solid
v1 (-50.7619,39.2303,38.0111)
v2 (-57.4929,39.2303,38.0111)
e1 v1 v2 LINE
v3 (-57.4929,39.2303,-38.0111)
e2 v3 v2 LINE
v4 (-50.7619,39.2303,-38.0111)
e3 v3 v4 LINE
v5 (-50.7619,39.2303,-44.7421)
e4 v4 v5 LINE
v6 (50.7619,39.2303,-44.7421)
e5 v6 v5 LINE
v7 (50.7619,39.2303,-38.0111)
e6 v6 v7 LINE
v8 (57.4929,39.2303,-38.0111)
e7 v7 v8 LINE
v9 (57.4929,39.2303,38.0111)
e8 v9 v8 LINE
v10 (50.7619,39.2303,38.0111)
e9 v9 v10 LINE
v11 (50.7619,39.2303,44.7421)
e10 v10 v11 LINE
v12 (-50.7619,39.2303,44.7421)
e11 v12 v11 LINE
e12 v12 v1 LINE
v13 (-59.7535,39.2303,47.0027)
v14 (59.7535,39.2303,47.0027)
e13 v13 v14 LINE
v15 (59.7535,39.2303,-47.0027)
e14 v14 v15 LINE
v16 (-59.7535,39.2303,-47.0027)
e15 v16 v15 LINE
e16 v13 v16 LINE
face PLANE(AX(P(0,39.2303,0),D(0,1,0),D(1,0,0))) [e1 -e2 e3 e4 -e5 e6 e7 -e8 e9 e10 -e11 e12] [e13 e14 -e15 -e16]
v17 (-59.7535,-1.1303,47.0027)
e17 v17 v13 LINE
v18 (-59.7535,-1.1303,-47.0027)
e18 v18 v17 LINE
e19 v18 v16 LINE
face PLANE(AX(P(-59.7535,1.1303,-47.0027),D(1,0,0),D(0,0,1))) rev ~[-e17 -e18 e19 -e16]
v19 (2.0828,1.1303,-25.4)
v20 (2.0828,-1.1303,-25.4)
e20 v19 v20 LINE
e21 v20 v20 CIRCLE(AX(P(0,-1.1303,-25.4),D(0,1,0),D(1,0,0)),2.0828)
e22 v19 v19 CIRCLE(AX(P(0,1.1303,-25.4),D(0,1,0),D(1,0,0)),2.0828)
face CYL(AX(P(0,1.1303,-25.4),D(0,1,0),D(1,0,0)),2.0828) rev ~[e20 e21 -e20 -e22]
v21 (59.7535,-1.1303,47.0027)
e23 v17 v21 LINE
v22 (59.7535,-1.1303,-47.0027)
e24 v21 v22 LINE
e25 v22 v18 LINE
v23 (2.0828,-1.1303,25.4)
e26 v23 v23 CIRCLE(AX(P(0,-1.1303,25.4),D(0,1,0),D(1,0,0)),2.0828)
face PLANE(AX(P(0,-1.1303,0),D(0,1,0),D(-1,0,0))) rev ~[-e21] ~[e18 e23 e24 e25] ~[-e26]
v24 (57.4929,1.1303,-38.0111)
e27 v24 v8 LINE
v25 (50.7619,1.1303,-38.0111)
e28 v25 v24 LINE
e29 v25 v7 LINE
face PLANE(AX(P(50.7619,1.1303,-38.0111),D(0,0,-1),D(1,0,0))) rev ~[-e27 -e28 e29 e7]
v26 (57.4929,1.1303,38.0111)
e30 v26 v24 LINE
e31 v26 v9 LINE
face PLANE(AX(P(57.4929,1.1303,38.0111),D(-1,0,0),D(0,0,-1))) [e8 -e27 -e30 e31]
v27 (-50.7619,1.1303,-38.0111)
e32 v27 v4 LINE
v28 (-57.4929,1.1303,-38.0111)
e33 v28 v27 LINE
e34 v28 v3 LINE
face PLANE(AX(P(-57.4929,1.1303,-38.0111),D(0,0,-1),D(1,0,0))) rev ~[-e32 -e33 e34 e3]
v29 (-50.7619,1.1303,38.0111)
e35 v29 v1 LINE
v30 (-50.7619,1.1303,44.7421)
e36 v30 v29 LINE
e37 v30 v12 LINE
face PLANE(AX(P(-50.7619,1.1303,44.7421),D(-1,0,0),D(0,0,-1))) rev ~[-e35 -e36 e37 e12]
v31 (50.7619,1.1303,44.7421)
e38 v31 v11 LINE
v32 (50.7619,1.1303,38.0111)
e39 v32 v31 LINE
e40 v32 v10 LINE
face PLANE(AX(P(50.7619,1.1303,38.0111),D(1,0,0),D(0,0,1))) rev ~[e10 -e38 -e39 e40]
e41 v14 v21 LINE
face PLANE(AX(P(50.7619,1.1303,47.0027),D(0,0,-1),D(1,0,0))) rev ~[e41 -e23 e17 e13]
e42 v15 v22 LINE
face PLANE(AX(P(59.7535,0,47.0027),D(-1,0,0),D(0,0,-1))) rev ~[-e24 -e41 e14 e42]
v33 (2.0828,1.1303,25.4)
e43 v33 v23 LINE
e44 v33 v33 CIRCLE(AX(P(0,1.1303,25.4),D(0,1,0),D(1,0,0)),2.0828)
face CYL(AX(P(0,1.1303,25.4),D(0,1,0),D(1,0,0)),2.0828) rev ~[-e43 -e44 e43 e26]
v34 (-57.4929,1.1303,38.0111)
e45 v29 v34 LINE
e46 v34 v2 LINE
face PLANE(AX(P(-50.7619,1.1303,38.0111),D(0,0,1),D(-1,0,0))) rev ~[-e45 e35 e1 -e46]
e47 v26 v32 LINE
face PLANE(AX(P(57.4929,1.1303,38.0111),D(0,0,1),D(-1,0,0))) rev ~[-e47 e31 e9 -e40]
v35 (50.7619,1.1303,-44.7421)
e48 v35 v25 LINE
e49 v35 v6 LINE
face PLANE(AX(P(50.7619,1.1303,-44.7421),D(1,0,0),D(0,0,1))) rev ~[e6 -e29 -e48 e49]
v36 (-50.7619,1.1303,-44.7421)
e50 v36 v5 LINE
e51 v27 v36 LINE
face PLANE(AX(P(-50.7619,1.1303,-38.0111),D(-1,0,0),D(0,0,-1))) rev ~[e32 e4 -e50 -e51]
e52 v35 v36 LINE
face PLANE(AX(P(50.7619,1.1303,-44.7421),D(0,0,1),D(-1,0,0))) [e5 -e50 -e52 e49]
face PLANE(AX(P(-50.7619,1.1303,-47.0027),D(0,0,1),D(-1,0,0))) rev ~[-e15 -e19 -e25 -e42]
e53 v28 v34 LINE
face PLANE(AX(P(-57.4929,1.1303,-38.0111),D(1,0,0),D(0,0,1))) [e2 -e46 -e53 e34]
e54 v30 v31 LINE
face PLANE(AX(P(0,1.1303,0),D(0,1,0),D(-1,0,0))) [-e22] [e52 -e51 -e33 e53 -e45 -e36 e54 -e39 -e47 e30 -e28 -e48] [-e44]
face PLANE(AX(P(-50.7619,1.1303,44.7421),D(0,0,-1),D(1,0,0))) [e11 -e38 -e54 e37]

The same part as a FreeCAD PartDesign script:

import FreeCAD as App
import Part
import Sketcher

V = App.Vector
Q = App.Units.Quantity


def add_polygon(sketch, points):
    """Adds a closed chain of lines whose ends are joined by coincident constraints."""
    first, n = sketch.GeometryCount, len(points)
    for a, b in zip(points, points[1:] + points[:1]):
        sketch.addGeometry(Part.LineSegment(App.Vector(*a, 0), App.Vector(*b, 0)), False)
    for i in range(n):
        sketch.addConstraint(Sketcher.Constraint("Coincident", first + i, 2, first + (i + 1) % n, 1))

doc = App.newDocument("Part")
body = doc.addObject("PartDesign::Body", "Body")

sketch1 = body.newObject("Sketcher::SketchObject", "Sketch")
sketch1.AttachmentSupport = (doc.getObject("XZ_Plane"), [""])
sketch1.MapMode = "FlatFace"
add_polygon(sketch1, [(59.7535, 47.0027), (59.7535, -47.0027), (-59.7535, -47.0027), (-59.7535, 47.0027)])
sketch1.addConstraint(Sketcher.Constraint("Vertical", 0))
sketch1.addConstraint(Sketcher.Constraint("Horizontal", 1))
sketch1.addConstraint(Sketcher.Constraint("Vertical", 2))
sketch1.addConstraint(Sketcher.Constraint("Horizontal", 3))
sketch1.addConstraint(Sketcher.Constraint("Symmetric", 0, 2, 2, 2, -1, 1))
sketch1.addConstraint(Sketcher.Constraint("DistanceX", 1, 2, 1, 1, Q("4.705 in")))
sketch1.addConstraint(Sketcher.Constraint("DistanceY", 0, 2, 0, 1, Q("3.701 in")))
pad1 = body.newObject("PartDesign::Pad", "Pad")
pad1.Profile = sketch1
pad1.Length = Q("0.089 in")
pad1.Midplane = True

sketch2 = body.newObject("Sketcher::SketchObject", "Sketch001")
sketch2.AttachmentSupport = (doc.getObject("XZ_Plane"), [""])
sketch2.MapMode = "FlatFace"
sketch2.AttachmentOffset = App.Placement(V(0, 0, -0.0445 * 25.4), App.Rotation())
add_polygon(sketch2, [(59.7535, -47.0027), (-59.7535, -47.0027), (-59.7535, 47.0027), (59.7535, 47.0027)])
add_polygon(sketch2, [(50.7619, 44.7421), (-50.7619, 44.7421), (-50.7619, 38.0111), (-57.4929, 38.0111), (-57.4929, -38.0111), (-50.7619, -38.0111), (-50.7619, -44.7421), (50.7619, -44.7421), (50.7619, -38.0111), (57.4929, -38.0111), (57.4929, 38.0111), (50.7619, 38.0111)])
sketch2.addConstraint(Sketcher.Constraint("Horizontal", 0))
sketch2.addConstraint(Sketcher.Constraint("Vertical", 1))
sketch2.addConstraint(Sketcher.Constraint("Horizontal", 2))
sketch2.addConstraint(Sketcher.Constraint("Vertical", 3))
sketch2.addConstraint(Sketcher.Constraint("Horizontal", 4))
sketch2.addConstraint(Sketcher.Constraint("Vertical", 5))
sketch2.addConstraint(Sketcher.Constraint("Horizontal", 6))
sketch2.addConstraint(Sketcher.Constraint("Vertical", 7))
sketch2.addConstraint(Sketcher.Constraint("Horizontal", 8))
sketch2.addConstraint(Sketcher.Constraint("Vertical", 9))
sketch2.addConstraint(Sketcher.Constraint("Horizontal", 10))
sketch2.addConstraint(Sketcher.Constraint("Vertical", 11))
sketch2.addConstraint(Sketcher.Constraint("Horizontal", 12))
sketch2.addConstraint(Sketcher.Constraint("Vertical", 13))
sketch2.addConstraint(Sketcher.Constraint("Horizontal", 14))
sketch2.addConstraint(Sketcher.Constraint("Vertical", 15))
sketch2.addConstraint(Sketcher.Constraint("Symmetric", 0, 2, 2, 2, -1, 1))
sketch2.addConstraint(Sketcher.Constraint("Symmetric", 4, 2, 10, 2, -1, 1))
sketch2.addConstraint(Sketcher.Constraint("Symmetric", 6, 2, 12, 2, -1, 1))
sketch2.addConstraint(Sketcher.Constraint("Symmetric", 8, 2, 14, 2, -1, 1))
sketch2.addConstraint(Sketcher.Constraint("Symmetric", 8, 2, 11, 2, -2))
sketch2.addConstraint(Sketcher.Constraint("Equal", 14, 5))
sketch2.addConstraint(Sketcher.Constraint("DistanceX", 1, 2, 4, 2, Q("0.354 in")))
sketch2.addConstraint(Sketcher.Constraint("DistanceY", 5, 2, 1, 2, Q("0.354 in")))
sketch2.addConstraint(Sketcher.Constraint("DistanceX", 0, 2, 0, 1, Q("4.705 in")))
sketch2.addConstraint(Sketcher.Constraint("DistanceX", 6, 2, 6, 1, Q("0.265 in")))
sketch2.addConstraint(Sketcher.Constraint("DistanceY", 1, 1, 1, 2, Q("3.701 in")))
pad2 = body.newObject("PartDesign::Pad", "Pad001")
pad2.Profile = sketch2
pad2.Length = Q("1.5 in")
pad2.Reversed = True

sketch3 = body.newObject("Sketcher::SketchObject", "Sketch002")
sketch3.AttachmentSupport = (doc.getObject("XZ_Plane"), [""])
sketch3.MapMode = "FlatFace"
sketch3.AttachmentOffset = App.Placement(V(0, 0, -0.0445 * 25.4), App.Rotation())
sketch3.addGeometry(Part.Circle(V(0, 25.4, 0), V(0, 0, 1), 2.0828), False)
sketch3.addGeometry(Part.Circle(V(0, -25.4, 0), V(0, 0, 1), 2.0828), False)
sketch3.addConstraint(Sketcher.Constraint("Equal", 0, 1))
sketch3.addConstraint(Sketcher.Constraint("Symmetric", 0, 3, 1, 3, -1, 1))
sketch3.addConstraint(Sketcher.Constraint("PointOnObject", 0, 3, -2))
sketch3.addConstraint(Sketcher.Constraint("Diameter", 0, Q("0.164 in")))
sketch3.addConstraint(Sketcher.Constraint("DistanceY", -1, 1, 0, 3, Q("1 in")))
pocket1 = body.newObject("PartDesign::Pocket", "Pocket")
pocket1.Profile = sketch3
pocket1.Type = "ThroughAll"
pocket1.Reversed = True

doc.recompute()
